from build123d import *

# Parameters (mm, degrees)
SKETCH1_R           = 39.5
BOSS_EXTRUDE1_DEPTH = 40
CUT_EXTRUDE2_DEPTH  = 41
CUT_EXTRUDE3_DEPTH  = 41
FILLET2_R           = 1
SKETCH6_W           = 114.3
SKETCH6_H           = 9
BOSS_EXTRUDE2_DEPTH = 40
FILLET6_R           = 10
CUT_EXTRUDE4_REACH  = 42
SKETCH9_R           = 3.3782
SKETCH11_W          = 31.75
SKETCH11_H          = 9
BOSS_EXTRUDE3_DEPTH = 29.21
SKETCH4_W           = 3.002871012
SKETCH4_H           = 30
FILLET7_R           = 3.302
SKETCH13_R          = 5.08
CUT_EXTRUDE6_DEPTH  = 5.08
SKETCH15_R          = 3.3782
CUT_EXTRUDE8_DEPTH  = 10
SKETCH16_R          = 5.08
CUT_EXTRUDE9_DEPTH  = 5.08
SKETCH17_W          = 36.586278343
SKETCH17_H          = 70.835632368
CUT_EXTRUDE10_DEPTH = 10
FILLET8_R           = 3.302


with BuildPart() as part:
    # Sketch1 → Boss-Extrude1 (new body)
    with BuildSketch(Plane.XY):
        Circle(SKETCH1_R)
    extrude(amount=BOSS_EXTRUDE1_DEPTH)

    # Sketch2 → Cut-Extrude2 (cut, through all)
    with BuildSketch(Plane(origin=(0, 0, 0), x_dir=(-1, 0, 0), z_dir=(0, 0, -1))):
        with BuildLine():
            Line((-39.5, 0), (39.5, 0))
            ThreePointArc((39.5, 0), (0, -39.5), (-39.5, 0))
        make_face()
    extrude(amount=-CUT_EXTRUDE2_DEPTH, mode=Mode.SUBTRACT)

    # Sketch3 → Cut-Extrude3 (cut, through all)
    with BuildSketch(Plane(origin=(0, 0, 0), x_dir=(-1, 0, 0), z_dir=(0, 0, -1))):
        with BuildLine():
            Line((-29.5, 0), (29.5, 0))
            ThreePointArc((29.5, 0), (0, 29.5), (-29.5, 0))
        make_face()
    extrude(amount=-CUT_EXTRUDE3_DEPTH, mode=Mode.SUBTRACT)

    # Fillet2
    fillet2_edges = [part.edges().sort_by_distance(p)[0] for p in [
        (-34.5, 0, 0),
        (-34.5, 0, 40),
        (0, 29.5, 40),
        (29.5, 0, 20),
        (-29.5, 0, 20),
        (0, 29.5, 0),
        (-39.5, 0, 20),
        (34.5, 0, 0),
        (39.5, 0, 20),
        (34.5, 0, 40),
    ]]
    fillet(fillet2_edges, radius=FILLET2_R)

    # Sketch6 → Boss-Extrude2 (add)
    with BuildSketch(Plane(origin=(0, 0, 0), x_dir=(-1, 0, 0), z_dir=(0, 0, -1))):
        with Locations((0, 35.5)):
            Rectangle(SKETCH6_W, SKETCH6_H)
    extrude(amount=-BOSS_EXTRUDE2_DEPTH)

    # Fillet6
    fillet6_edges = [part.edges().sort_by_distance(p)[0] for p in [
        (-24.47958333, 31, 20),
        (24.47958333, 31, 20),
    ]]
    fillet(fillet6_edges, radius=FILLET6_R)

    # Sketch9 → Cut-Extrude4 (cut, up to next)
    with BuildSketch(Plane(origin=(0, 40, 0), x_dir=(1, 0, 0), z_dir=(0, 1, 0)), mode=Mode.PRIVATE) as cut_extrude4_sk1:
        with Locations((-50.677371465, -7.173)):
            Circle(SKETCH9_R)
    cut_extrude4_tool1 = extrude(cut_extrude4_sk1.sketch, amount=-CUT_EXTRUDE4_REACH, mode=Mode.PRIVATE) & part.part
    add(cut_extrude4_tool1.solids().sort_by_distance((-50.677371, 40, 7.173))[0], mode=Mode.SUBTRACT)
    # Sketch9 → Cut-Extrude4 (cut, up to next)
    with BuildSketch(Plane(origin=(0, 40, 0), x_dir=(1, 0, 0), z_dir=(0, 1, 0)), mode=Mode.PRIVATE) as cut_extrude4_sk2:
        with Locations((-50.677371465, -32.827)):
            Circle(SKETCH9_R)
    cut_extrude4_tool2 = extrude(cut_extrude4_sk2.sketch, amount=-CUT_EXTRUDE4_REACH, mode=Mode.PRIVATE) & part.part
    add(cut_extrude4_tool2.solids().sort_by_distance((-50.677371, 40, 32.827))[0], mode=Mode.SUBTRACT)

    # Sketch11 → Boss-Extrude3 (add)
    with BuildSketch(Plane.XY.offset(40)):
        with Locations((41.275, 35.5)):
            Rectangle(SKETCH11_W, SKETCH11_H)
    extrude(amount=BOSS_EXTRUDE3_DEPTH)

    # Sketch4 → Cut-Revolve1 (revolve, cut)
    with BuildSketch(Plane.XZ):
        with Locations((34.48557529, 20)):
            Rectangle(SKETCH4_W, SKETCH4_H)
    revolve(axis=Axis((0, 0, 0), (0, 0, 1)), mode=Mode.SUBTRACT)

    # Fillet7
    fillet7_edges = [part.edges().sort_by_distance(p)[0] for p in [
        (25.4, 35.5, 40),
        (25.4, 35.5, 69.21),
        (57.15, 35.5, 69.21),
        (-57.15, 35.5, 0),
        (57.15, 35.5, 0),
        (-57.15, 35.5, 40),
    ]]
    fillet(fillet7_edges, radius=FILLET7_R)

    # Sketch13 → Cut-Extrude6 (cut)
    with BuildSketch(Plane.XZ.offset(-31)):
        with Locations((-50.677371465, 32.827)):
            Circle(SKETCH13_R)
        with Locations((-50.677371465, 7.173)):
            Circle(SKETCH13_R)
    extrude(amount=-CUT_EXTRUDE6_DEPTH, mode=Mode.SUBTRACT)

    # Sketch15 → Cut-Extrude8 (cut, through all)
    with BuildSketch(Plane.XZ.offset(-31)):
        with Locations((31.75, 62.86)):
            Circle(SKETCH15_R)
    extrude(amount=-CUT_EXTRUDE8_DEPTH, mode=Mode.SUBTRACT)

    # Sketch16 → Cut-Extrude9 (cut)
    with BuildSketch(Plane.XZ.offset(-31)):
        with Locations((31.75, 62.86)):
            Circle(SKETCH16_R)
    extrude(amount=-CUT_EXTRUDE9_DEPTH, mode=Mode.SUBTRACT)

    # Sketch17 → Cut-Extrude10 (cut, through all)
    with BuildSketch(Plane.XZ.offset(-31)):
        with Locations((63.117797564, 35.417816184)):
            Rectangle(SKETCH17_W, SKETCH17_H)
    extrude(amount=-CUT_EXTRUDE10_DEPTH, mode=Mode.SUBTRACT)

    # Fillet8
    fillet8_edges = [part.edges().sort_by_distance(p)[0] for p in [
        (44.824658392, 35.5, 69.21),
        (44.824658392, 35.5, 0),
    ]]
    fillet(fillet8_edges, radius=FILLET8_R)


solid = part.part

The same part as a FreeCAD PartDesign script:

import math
import FreeCAD as App
import Part
import Sketcher

V = App.Vector


def edges_at(feature, points):
    """Names of the edges that pass closest to the given points."""
    edges = feature.Shape.Edges
    near = lambda p: min(range(len(edges)), key=lambda i: edges[i].distToShape(Part.Vertex(*p))[0])
    return sorted({f"Edge{near(p) + 1}" for p in points})


def add_polygon(sketch, points):
    """Adds a closed chain of lines whose ends are joined by coincident constraints."""
    first, n = sketch.GeometryCount, len(points)
    for a, b in zip(points, points[1:] + points[:1]):
        sketch.addGeometry(Part.LineSegment(App.Vector(*a, 0), App.Vector(*b, 0)), False)
    for i in range(n):
        sketch.addConstraint(Sketcher.Constraint("Coincident", first + i, 2, first + (i + 1) % n, 1))

doc = App.newDocument("Part")
params = doc.addObject("Spreadsheet::Sheet", "Params")
for row, (alias, value) in enumerate([
    ("sketch1_diameter", "79 mm"),
    ("pad1_length", "40 mm"),
    ("sketch2_radius", "39.5 mm"),
    ("sketch3_radius", "29.5 mm"),
    ("fillet_radius", "1 mm"),
    ("sketch4_height", "9 mm"),
    ("sketch4_width", "114.3 mm"),
    ("pad2_length", "40 mm"),
    ("fillet2_radius", "10 mm"),
    ("sketch7_height", "9 mm"),
    ("sketch7_width", "31.75 mm"),
    ("pad3_length", "29.21 mm"),
    ("sketch8_height", "30 mm"),
    ("groove_angle", "360 deg"),
    ("fillet3_radius", "3.302 mm"),
    ("sketch9_diameter", "10.16 mm"),
    ("pocket5_length", "5.08 mm"),
    ("sketch11_diameter", "10.16 mm"),
    ("pocket7_length", "5.08 mm"),
    ("fillet4_radius", "3.302 mm"),
], start=1):
    params.set(f"A{row}", alias)
    params.set(f"B{row}", "=" + value)
    params.setAlias(f"B{row}", alias)

body = doc.addObject("PartDesign::Body", "Body")

# Sketch on XY plane
sketch1 = body.newObject("Sketcher::SketchObject", "Sketch")
sketch1.AttachmentSupport = (doc.getObject("XY_Plane"), [""])
sketch1.MapMode = "FlatFace"
sketch1.addGeometry(Part.Circle(V(0, 0, 0), V(0, 0, 1), 40), False)
sketch1.addConstraint(Sketcher.Constraint("Coincident", 0, 3, -1, 1))
sketch1.addConstraint(Sketcher.Constraint("Diameter", 0, 79.0))
sketch1.setExpression("Constraints[1]", "Params.sketch1_diameter")
pad1 = body.newObject("PartDesign::Pad", "Pad")
pad1.Profile = sketch1
pad1.setExpression("Length", "Params.pad1_length")

# Sketch on XY plane
sketch2 = body.newObject("Sketcher::SketchObject", "Sketch001")
sketch2.AttachmentSupport = (doc.getObject("XY_Plane"), [""])
sketch2.MapMode = "FlatFace"
sketch2.addGeometry(Part.LineSegment(V(-40, 0, 0), V(40, 0, 0)), False)
sketch2.addGeometry(Part.ArcOfCircle(Part.Circle(V(0, 0, 0), V(0, 0, 1), 40), math.radians(180), math.radians(360)), False)
sketch2.addConstraint(Sketcher.Constraint("Coincident", 0, 1, 1, 1))
sketch2.addConstraint(Sketcher.Constraint("Coincident", 1, 2, 0, 2))
sketch2.addConstraint(Sketcher.Constraint("Horizontal", 0))
sketch2.addConstraint(Sketcher.Constraint("Coincident", 1, 3, -1, 1))
sketch2.addConstraint(Sketcher.Constraint("PointOnObject", 0, 1, -1))
sketch2.addConstraint(Sketcher.Constraint("Radius", 1, 39.5))
sketch2.setExpression("Constraints[5]", "Params.sketch2_radius")
pocket1 = body.newObject("PartDesign::Pocket", "Pocket")
pocket1.Profile = sketch2
pocket1.Type = "ThroughAll"
pocket1.Reversed = True

# Sketch on XY plane
sketch3 = body.newObject("Sketcher::SketchObject", "Sketch002")
sketch3.AttachmentSupport = (doc.getObject("XY_Plane"), [""])
sketch3.MapMode = "FlatFace"
sketch3.addGeometry(Part.LineSegment(V(30, 0, 0), V(-30, 0, 0)), False)
sketch3.addGeometry(Part.ArcOfCircle(Part.Circle(V(0, 0, 0), V(0, 0, 1), 30), math.radians(0), math.radians(180)), False)
sketch3.addConstraint(Sketcher.Constraint("Coincident", 0, 1, 1, 1))
sketch3.addConstraint(Sketcher.Constraint("Coincident", 1, 2, 0, 2))
sketch3.addConstraint(Sketcher.Constraint("Horizontal", 0))
sketch3.addConstraint(Sketcher.Constraint("Coincident", 1, 3, -1, 1))
sketch3.addConstraint(Sketcher.Constraint("PointOnObject", 0, 1, -1))
sketch3.addConstraint(Sketcher.Constraint("Radius", 1, 29.5))
sketch3.setExpression("Constraints[5]", "Params.sketch3_radius")
pocket2 = body.newObject("PartDesign::Pocket", "Pocket001")
pocket2.Profile = sketch3
pocket2.Type = "ThroughAll"
pocket2.Reversed = True
doc.recompute()

fillet = body.newObject("PartDesign::Fillet", "Fillet")
fillet.Base = (pocket2, edges_at(pocket2, [
    (-34.5, 0, 0),
    (-34.5, 0, 40),
    (0, 29.5, 40),
    (29.5, 0, 20),
    (-29.5, 0, 20),
    (0, 29.5, 0),
    (-39.5, 0, 20),
    (34.5, 0, 0),
    (39.5, 0, 20),
    (34.5, 0, 40),
]))
fillet.setExpression("Radius", "Params.fillet_radius")

# Sketch on XY plane
sketch4 = body.newObject("Sketcher::SketchObject", "Sketch003")
sketch4.AttachmentSupport = (doc.getObject("XY_Plane"), [""])
sketch4.MapMode = "FlatFace"
add_polygon(sketch4, [(57, 40), (57, 31), (-57, 31), (-57, 40)])  # lines 0-3
sketch4.addConstraint(Sketcher.Constraint("Vertical", 0))
sketch4.addConstraint(Sketcher.Constraint("Horizontal", 1))
sketch4.addConstraint(Sketcher.Constraint("Vertical", 2))
sketch4.addConstraint(Sketcher.Constraint("Horizontal", 3))
sketch4.addConstraint(Sketcher.Constraint("DistanceY", 0, 2, 0, 1, 9.0))
sketch4.addConstraint(Sketcher.Constraint("DistanceX", 1, 2, 1, 1, 114.3))
sketch4.addConstraint(Sketcher.Constraint("DistanceY", -1, 1, 0, 2, 31.0))
sketch4.addConstraint(Sketcher.Constraint("DistanceX", -1, 1, 0, 2, 57.15))
sketch4.setExpression("Constraints[8]", "Params.sketch4_height")
sketch4.setExpression("Constraints[9]", "Params.sketch4_width")
pad2 = body.newObject("PartDesign::Pad", "Pad001")
pad2.Profile = sketch4
pad2.setExpression("Length", "Params.pad2_length")
doc.recompute()

fillet2 = body.newObject("PartDesign::Fillet", "Fillet001")
fillet2.Base = (pad2, edges_at(pad2, [(-24.48, 31, 20), (24.48, 31, 20)]))
fillet2.setExpression("Radius", "Params.fillet2_radius")

# Sketch on XZ plane
sketch5 = body.newObject("Sketcher::SketchObject", "Sketch004")
sketch5.AttachmentSupport = (doc.getObject("XZ_Plane"), [""])
sketch5.MapMode = "FlatFace"
sketch5.AttachmentOffset = App.Placement(V(0, 0, -40), App.Rotation())
sketch5.addGeometry(Part.Circle(V(-50.7, 7.2, 0), V(0, 0, 1), 3.4), False)
sketch5.addConstraint(Sketcher.Constraint("Diameter", 0, 6.7564))
sketch5.addConstraint(Sketcher.Constraint("DistanceY", -1, 1, 0, 3, 7.173))
sketch5.addConstraint(Sketcher.Constraint("DistanceX", 0, 3, -1, 1, 50.677371))
pocket3 = body.newObject("PartDesign::Pocket", "Pocket002")
pocket3.Profile = sketch5
pocket3.Type = "UpToFirst"
pocket3.Reversed = True

# Sketch on XZ plane
sketch6 = body.newObject("Sketcher::SketchObject", "Sketch005")
sketch6.AttachmentSupport = (doc.getObject("XZ_Plane"), [""])
sketch6.MapMode = "FlatFace"
sketch6.AttachmentOffset = App.Placement(V(0, 0, -40), App.Rotation())
sketch6.addGeometry(Part.Circle(V(-50.7, 32.8, 0), V(0, 0, 1), 3.4), False)
sketch6.addConstraint(Sketcher.Constraint("Diameter", 0, 6.7564))
sketch6.addConstraint(Sketcher.Constraint("DistanceY", -1, 1, 0, 3, 32.827))
sketch6.addConstraint(Sketcher.Constraint("DistanceX", 0, 3, -1, 1, 50.677371))
pocket4 = body.newObject("PartDesign::Pocket", "Pocket003")
pocket4.Profile = sketch6
pocket4.Type = "UpToFirst"
pocket4.Reversed = True

# Sketch on XY plane
sketch7 = body.newObject("Sketcher::SketchObject", "Sketch006")
sketch7.AttachmentSupport = (doc.getObject("XY_Plane"), [""])
sketch7.MapMode = "FlatFace"
sketch7.AttachmentOffset = App.Placement(V(0, 0, 40), App.Rotation())
add_polygon(sketch7, [(25, 40), (25, 31), (57, 31), (57, 40)])  # lines 0-3
sketch7.addConstraint(Sketcher.Constraint("Vertical", 0))
sketch7.addConstraint(Sketcher.Constraint("Horizontal", 1))
sketch7.addConstraint(Sketcher.Constraint("Vertical", 2))
sketch7.addConstraint(Sketcher.Constraint("Horizontal", 3))
sketch7.addConstraint(Sketcher.Constraint("DistanceY", 0, 2, 0, 1, 9.0))
sketch7.addConstraint(Sketcher.Constraint("DistanceY", -1, 1, 0, 2, 31.0))
sketch7.addConstraint(Sketcher.Constraint("DistanceX", 1, 1, 1, 2, 31.75))
sketch7.addConstraint(Sketcher.Constraint("DistanceX", -1, 1, 0, 2, 25.4))
sketch7.setExpression("Constraints[8]", "Params.sketch7_height")
sketch7.setExpression("Constraints[10]", "Params.sketch7_width")
pad3 = body.newObject("PartDesign::Pad", "Pad002")
pad3.Profile = sketch7
pad3.setExpression("Length", "Params.pad3_length")

# Sketch on XZ plane
sketch8 = body.newObject("Sketcher::SketchObject", "Sketch007")
sketch8.AttachmentSupport = (doc.getObject("XZ_Plane"), [""])
sketch8.MapMode = "FlatFace"
add_polygon(sketch8, [(33, 35), (33, 5), (36, 5), (36, 35)])  # lines 0-3
sketch8.addConstraint(Sketcher.Constraint("Vertical", 0))
sketch8.addConstraint(Sketcher.Constraint("Horizontal", 1))
sketch8.addConstraint(Sketcher.Constraint("Vertical", 2))
sketch8.addConstraint(Sketcher.Constraint("Horizontal", 3))
sketch8.addConstraint(Sketcher.Constraint("DistanceY", 0, 2, 0, 1, 30.0))
sketch8.addConstraint(Sketcher.Constraint("DistanceY", -1, 1, 0, 2, 5.0))
sketch8.addConstraint(Sketcher.Constraint("DistanceX", 1, 1, 1, 2, 3.002871))
sketch8.addConstraint(Sketcher.Constraint("DistanceX", -1, 1, 0, 2, 32.98414))
sketch8.setExpression("Constraints[8]", "Params.sketch8_height")
groove = body.newObject("PartDesign::Groove", "Groove")
groove.Profile = sketch8
groove.ReferenceAxis = (sketch8, ["V_Axis"])
groove.setExpression("Angle", "Params.groove_angle")
doc.recompute()

fillet3 = body.newObject("PartDesign::Fillet", "Fillet002")
fillet3.Base = (groove, edges_at(groove, [
    (25.4, 35.5, 40),
    (25.4, 35.5, 69.21),
    (57.15, 35.5, 69.21),
    (-57.15, 35.5, 0),
    (57.15, 35.5, 0),
    (-57.15, 35.5, 40),
]))
fillet3.setExpression("Radius", "Params.fillet3_radius")

# Sketch on XZ plane
sketch9 = body.newObject("Sketcher::SketchObject", "Sketch008")
sketch9.AttachmentSupport = (doc.getObject("XZ_Plane"), [""])
sketch9.MapMode = "FlatFace"
sketch9.AttachmentOffset = App.Placement(V(0, 0, -31), App.Rotation())
sketch9.addGeometry(Part.Circle(V(-51, 33, 0), V(0, 0, 1), 5), False)
sketch9.addGeometry(Part.Circle(V(-51, 7, 0), V(0, 0, 1), 5), False)
sketch9.addConstraint(Sketcher.Constraint("Equal", 0, 1))
sketch9.addConstraint(Sketcher.Constraint("Vertical", 0, 3, 1, 3))
sketch9.addConstraint(Sketcher.Constraint("Diameter", 0, 10.16))
sketch9.addConstraint(Sketcher.Constraint("DistanceY", -1, 1, 0, 3, 32.827))
sketch9.addConstraint(Sketcher.Constraint("DistanceY", -1, 1, 1, 3, 7.173))
sketch9.addConstraint(Sketcher.Constraint("DistanceX", 0, 3, -1, 1, 50.677371))
sketch9.setExpression("Constraints[2]", "Params.sketch9_diameter")
pocket5 = body.newObject("PartDesign::Pocket", "Pocket004")
pocket5.Profile = sketch9
pocket5.setExpression("Length", "Params.pocket5_length")

# Sketch on XZ plane
sketch10 = body.newObject("Sketcher::SketchObject", "Sketch009")
sketch10.AttachmentSupport = (doc.getObject("XZ_Plane"), [""])
sketch10.MapMode = "FlatFace"
sketch10.AttachmentOffset = App.Placement(V(0, 0, -31), App.Rotation())
sketch10.addGeometry(Part.Circle(V(31.8, 62.9, 0), V(0, 0, 1), 3.4), False)
sketch10.addConstraint(Sketcher.Constraint("Diameter", 0, 6.7564))
sketch10.addConstraint(Sketcher.Constraint("DistanceX", -1, 1, 0, 3, 31.75))
sketch10.addConstraint(Sketcher.Constraint("DistanceY", -1, 1, 0, 3, 62.86))
pocket6 = body.newObject("PartDesign::Pocket", "Pocket005")
pocket6.Profile = sketch10
pocket6.Type = "ThroughAll"

# Sketch on XZ plane
sketch11 = body.newObject("Sketcher::SketchObject", "Sketch010")
sketch11.AttachmentSupport = (doc.getObject("XZ_Plane"), [""])
sketch11.MapMode = "FlatFace"
sketch11.AttachmentOffset = App.Placement(V(0, 0, -31), App.Rotation())
sketch11.addGeometry(Part.Circle(V(32, 63, 0), V(0, 0, 1), 5), False)
sketch11.addConstraint(Sketcher.Constraint("Diameter", 0, 10.16))
sketch11.addConstraint(Sketcher.Constraint("DistanceX", -1, 1, 0, 3, 31.75))
sketch11.addConstraint(Sketcher.Constraint("DistanceY", -1, 1, 0, 3, 62.86))
sketch11.setExpression("Constraints[0]", "Params.sketch11_diameter")
pocket7 = body.newObject("PartDesign::Pocket", "Pocket006")
pocket7.Profile = sketch11
pocket7.setExpression("Length", "Params.pocket7_length")

# Sketch on XZ plane
sketch12 = body.newObject("Sketcher::SketchObject", "Sketch011")
sketch12.AttachmentSupport = (doc.getObject("XZ_Plane"), [""])
sketch12.MapMode = "FlatFace"
sketch12.AttachmentOffset = App.Placement(V(0, 0, -31), App.Rotation())
add_polygon(sketch12, [(45, 71), (45, 0), (81, 0), (81, 71)])  # lines 0-3
sketch12.addConstraint(Sketcher.Constraint("Vertical", 0))
sketch12.addConstraint(Sketcher.Constraint("Horizontal", 1))
sketch12.addConstraint(Sketcher.Constraint("Vertical", 2))
sketch12.addConstraint(Sketcher.Constraint("Horizontal", 3))
sketch12.addConstraint(Sketcher.Constraint("PointOnObject", 0, 2, -1))
sketch12.addConstraint(Sketcher.Constraint("DistanceX", 1, 1, 1, 2, 36.586278))
sketch12.addConstraint(Sketcher.Constraint("DistanceY", 0, 2, 0, 1, 70.835632))
sketch12.addConstraint(Sketcher.Constraint("DistanceX", -1, 1, 0, 2, 44.824658))
pocket8 = body.newObject("PartDesign::Pocket", "Pocket007")
pocket8.Profile = sketch12
pocket8.Type = "ThroughAll"
doc.recompute()

fillet4 = body.newObject("PartDesign::Fillet", "Fillet003")
fillet4.Base = (pocket8, edges_at(pocket8, [(44.825, 35.5, 69.21), (44.825, 35.5, 0)]))
fillet4.setExpression("Radius", "Params.fillet4_radius")

doc.recompute()
